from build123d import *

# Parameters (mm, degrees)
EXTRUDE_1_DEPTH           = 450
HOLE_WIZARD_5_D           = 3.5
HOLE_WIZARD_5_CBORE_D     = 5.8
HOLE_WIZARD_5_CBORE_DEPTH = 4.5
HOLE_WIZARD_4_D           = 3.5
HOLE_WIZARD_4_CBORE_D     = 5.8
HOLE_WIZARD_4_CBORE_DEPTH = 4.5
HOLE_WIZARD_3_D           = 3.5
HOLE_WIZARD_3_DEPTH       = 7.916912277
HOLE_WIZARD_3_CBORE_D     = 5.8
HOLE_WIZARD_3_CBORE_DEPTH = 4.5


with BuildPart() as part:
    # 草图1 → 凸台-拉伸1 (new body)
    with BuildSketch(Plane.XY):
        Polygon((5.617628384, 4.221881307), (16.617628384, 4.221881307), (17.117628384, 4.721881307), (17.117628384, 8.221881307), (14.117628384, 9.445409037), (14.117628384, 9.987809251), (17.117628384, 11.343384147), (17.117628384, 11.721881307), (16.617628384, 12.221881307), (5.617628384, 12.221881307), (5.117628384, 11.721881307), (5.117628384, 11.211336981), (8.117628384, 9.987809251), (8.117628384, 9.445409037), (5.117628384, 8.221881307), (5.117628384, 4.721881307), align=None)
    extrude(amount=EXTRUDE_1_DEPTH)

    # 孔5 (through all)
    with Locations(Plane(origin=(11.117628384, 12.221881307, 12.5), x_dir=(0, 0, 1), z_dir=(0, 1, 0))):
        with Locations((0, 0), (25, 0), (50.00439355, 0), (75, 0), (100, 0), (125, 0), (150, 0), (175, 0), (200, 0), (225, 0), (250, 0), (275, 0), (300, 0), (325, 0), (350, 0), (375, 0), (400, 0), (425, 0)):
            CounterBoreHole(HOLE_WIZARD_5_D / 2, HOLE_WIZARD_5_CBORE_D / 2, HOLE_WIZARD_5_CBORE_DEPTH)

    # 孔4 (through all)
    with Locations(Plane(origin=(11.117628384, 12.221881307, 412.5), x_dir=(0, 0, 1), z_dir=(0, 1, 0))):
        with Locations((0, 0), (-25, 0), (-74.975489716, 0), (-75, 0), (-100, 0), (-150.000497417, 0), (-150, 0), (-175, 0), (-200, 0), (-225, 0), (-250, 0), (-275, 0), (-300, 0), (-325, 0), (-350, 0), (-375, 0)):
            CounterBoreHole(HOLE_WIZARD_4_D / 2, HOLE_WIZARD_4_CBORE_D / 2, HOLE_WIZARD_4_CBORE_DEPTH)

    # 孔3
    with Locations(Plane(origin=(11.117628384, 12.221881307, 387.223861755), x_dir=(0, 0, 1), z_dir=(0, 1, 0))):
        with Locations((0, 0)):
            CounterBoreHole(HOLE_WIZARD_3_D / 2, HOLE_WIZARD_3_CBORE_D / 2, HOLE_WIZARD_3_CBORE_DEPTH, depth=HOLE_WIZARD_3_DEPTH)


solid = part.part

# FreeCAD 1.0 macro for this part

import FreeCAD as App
import Part
import Sketcher
Q = App.Units.Quantity

doc = App.newDocument("Part")
params = doc.addObject("Spreadsheet::Sheet", "Params")
for row, (alias, value) in enumerate([
    ("sketch1_width", "11 mm"),
    ("sketch1_height", "3.5 mm"),
    ("pad1_length", "450 mm"),
    ("sketch2_diameter", "3.5 mm"),
    ("hole_diameter", "3.5 mm"),
    ("hole_cbore_diameter", "5.8 mm"),
    ("hole_cbore_depth", "4.5 mm"),
    ("sketch3_diameter", "3.5 mm"),
    ("hole2_diameter", "3.5 mm"),
    ("hole2_cbore_diameter", "5.8 mm"),
    ("hole2_cbore_depth", "4.5 mm"),
    ("sketch4_diameter", "3.5 mm"),
    ("hole3_diameter", "3.5 mm"),
    ("hole3_depth", "7.916912 mm"),
    ("hole3_cbore_diameter", "5.8 mm"),
    ("hole3_cbore_depth", "4.5 mm"),
], start=1):
    params.set(f"A{row}", alias)
    params.set(f"B{row}", "=" + value)
    params.setAlias(f"B{row}", alias)

body = doc.addObject("PartDesign::Body", "Body")

sketch1 = body.newObject("Sketcher::SketchObject", "Sketch")
sketch1.AttachmentSupport = (doc.getObject("XY_Plane"), [""])
sketch1.MapMode = "FlatFace"
sketch1.addGeometry([
    Part.LineSegment(App.Vector(5.62, 4.22, 0), App.Vector(16.62, 4.22, 0)),
    Part.LineSegment(App.Vector(16.62, 4.22, 0), App.Vector(17.12, 4.72, 0)),
    Part.LineSegment(App.Vector(17.12, 4.72, 0), App.Vector(17.12, 8.22, 0)),
    Part.LineSegment(App.Vector(17.12, 8.22, 0), App.Vector(14.12, 9.45, 0)),
    Part.LineSegment(App.Vector(14.12, 9.45, 0), App.Vector(14.12, 9.99, 0)),
    Part.LineSegment(App.Vector(14.12, 9.99, 0), App.Vector(17.12, 11.34, 0)),
    Part.LineSegment(App.Vector(17.12, 11.34, 0), App.Vector(17.12, 11.72, 0)),
    Part.LineSegment(App.Vector(17.12, 11.72, 0), App.Vector(16.62, 12.22, 0)),
    Part.LineSegment(App.Vector(16.62, 12.22, 0), App.Vector(5.62, 12.22, 0)),
    Part.LineSegment(App.Vector(5.62, 12.22, 0), App.Vector(5.12, 11.72, 0)),
    Part.LineSegment(App.Vector(5.12, 11.72, 0), App.Vector(5.12, 11.21, 0)),
    Part.LineSegment(App.Vector(5.12, 11.21, 0), App.Vector(8.12, 9.99, 0)),
    Part.LineSegment(App.Vector(8.12, 9.99, 0), App.Vector(8.12, 9.45, 0)),
    Part.LineSegment(App.Vector(8.12, 9.45, 0), App.Vector(5.12, 8.22, 0)),
    Part.LineSegment(App.Vector(5.12, 8.22, 0), App.Vector(5.12, 4.72, 0)),
    Part.LineSegment(App.Vector(5.12, 4.72, 0), App.Vector(5.62, 4.22, 0)),
], False)
sketch1.addConstraint([
    Sketcher.Constraint("Coincident", 0, 2, 1, 1),
    Sketcher.Constraint("Coincident", 1, 2, 2, 1),
    Sketcher.Constraint("Coincident", 2, 2, 3, 1),
    Sketcher.Constraint("Coincident", 3, 2, 4, 1),
    Sketcher.Constraint("Coincident", 4, 2, 5, 1),
    Sketcher.Constraint("Coincident", 5, 2, 6, 1),
    Sketcher.Constraint("Coincident", 6, 2, 7, 1),
    Sketcher.Constraint("Coincident", 7, 2, 8, 1),
    Sketcher.Constraint("Coincident", 8, 2, 9, 1),
    Sketcher.Constraint("Coincident", 9, 2, 10, 1),
    Sketcher.Constraint("Coincident", 10, 2, 11, 1),
    Sketcher.Constraint("Coincident", 11, 2, 12, 1),
    Sketcher.Constraint("Coincident", 12, 2, 13, 1),
    Sketcher.Constraint("Coincident", 13, 2, 14, 1),
    Sketcher.Constraint("Coincident", 14, 2, 15, 1),
    Sketcher.Constraint("Coincident", 15, 2, 0, 1),
    Sketcher.Constraint("Horizontal", 0),
    Sketcher.Constraint("Vertical", 2),
    Sketcher.Constraint("Vertical", 4),
    Sketcher.Constraint("Vertical", 6),
    Sketcher.Constraint("Horizontal", 8),
    Sketcher.Constraint("Vertical", 10),
    Sketcher.Constraint("Vertical", 12),
    Sketcher.Constraint("Vertical", 14),
    Sketcher.Constraint("Perpendicular", 1, 7),
    Sketcher.Constraint("Perpendicular", 7, 9),
    Sketcher.Constraint("Parallel", 3, 11),
    Sketcher.Constraint("Perpendicular", 9, 15),
    Sketcher.Constraint("Horizontal", 6, 2, 9, 2),
    Sketcher.Constraint("Horizontal", 4, 2, 11, 2),
    Sketcher.Constraint("Horizontal", 3, 2, 12, 2),
    Sketcher.Constraint("Horizontal", 2, 2, 13, 2),
    Sketcher.Constraint("Horizontal", 1, 2, 14, 2),
    Sketcher.Constraint("Vertical", 2, 2, 5, 2),
    Sketcher.Constraint("Vertical", 0, 2, 7, 2),
    Sketcher.Constraint("Vertical", 10, 2, 13, 2),
    Sketcher.Constraint("Vertical", 8, 2, 15, 2),
    Sketcher.Constraint("Equal", 3, 11),
    Sketcher.Constraint("DistanceX", 0, 1, 0, 2, Q("11 mm")),
    Sketcher.Constraint("DistanceY", 2, 1, 2, 2, Q("3.5 mm")),
    Sketcher.Constraint("DistanceY", 0, 2, 2, 2, Q("4 mm")),
    Sketcher.Constraint("DistanceX", 3, 2, 2, 2, Q("3 mm")),
    Sketcher.Constraint("DistanceY", 1, 2, 6, 2, Q("7 mm")),
    Sketcher.Constraint("DistanceY", 4, 1, 4, 2, Q("0.5424 mm")),
    Sketcher.Constraint("Distance", 3, Q("3.239911 mm")),
    Sketcher.Constraint("Distance", 5, Q("3.292048 mm")),
    Sketcher.Constraint("DistanceX", -1, 1, 0, 2, Q("16.617628 mm")),
    Sketcher.Constraint("DistanceY", -1, 1, 0, 2, Q("4.221881 mm")),
])
sketch1.setExpression("Constraints[38]", "Params.sketch1_width")
sketch1.setExpression("Constraints[39]", "Params.sketch1_height")
pad1 = body.newObject("PartDesign::Pad", "Pad")
pad1.Profile = sketch1
pad1.setExpression("Length", "Params.pad1_length")

sketch2 = body.newObject("Sketcher::SketchObject", "Sketch001")
sketch2.AttachmentSupport = (doc.getObject("XZ_Plane"), [""])
sketch2.MapMode = "FlatFace"
sketch2.AttachmentOffset = App.Placement(App.Vector(0, 0, -12.221881), App.Rotation())
sketch2.addGeometry([
    Part.Circle(App.Vector(11.1, 12.5, 0), App.Vector(0, 0, 1), 1.8),
    Part.Circle(App.Vector(11.1, 37.5, 0), App.Vector(0, 0, 1), 1.8),
    Part.Circle(App.Vector(11.1, 62.5, 0), App.Vector(0, 0, 1), 1.8),
    Part.Circle(App.Vector(11.1, 87.5, 0), App.Vector(0, 0, 1), 1.8),
    Part.Circle(App.Vector(11.1, 112.5, 0), App.Vector(0, 0, 1), 1.8),
    Part.Circle(App.Vector(11.1, 137.5, 0), App.Vector(0, 0, 1), 1.8),
    Part.Circle(App.Vector(11.1, 162.5, 0), App.Vector(0, 0, 1), 1.8),
    Part.Circle(App.Vector(11.1, 187.5, 0), App.Vector(0, 0, 1), 1.8),
    Part.Circle(App.Vector(11.1, 212.5, 0), App.Vector(0, 0, 1), 1.8),
    Part.Circle(App.Vector(11.1, 237.5, 0), App.Vector(0, 0, 1), 1.8),
    Part.Circle(App.Vector(11.1, 262.5, 0), App.Vector(0, 0, 1), 1.8),
    Part.Circle(App.Vector(11.1, 287.5, 0), App.Vector(0, 0, 1), 1.8),
    Part.Circle(App.Vector(11.1, 312.5, 0), App.Vector(0, 0, 1), 1.8),
    Part.Circle(App.Vector(11.1, 337.5, 0), App.Vector(0, 0, 1), 1.8),
    Part.Circle(App.Vector(11.1, 362.5, 0), App.Vector(0, 0, 1), 1.8),
    Part.Circle(App.Vector(11.1, 387.5, 0), App.Vector(0, 0, 1), 1.8),
    Part.Circle(App.Vector(11.1, 412.5, 0), App.Vector(0, 0, 1), 1.8),
    Part.Circle(App.Vector(11.1, 437.5, 0), App.Vector(0, 0, 1), 1.8),
], False)
sketch2.addConstraint([
    Sketcher.Constraint("Equal", 0, 1),
    Sketcher.Constraint("Equal", 1, 2),
    Sketcher.Constraint("Equal", 2, 3),
    Sketcher.Constraint("Equal", 3, 4),
    Sketcher.Constraint("Equal", 4, 5),
    Sketcher.Constraint("Equal", 5, 6),
    Sketcher.Constraint("Equal", 6, 7),
    Sketcher.Constraint("Equal", 7, 8),
    Sketcher.Constraint("Equal", 8, 9),
    Sketcher.Constraint("Equal", 9, 10),
    Sketcher.Constraint("Equal", 10, 11),
    Sketcher.Constraint("Equal", 11, 12),
    Sketcher.Constraint("Equal", 12, 13),
    Sketcher.Constraint("Equal", 13, 14),
    Sketcher.Constraint("Equal", 14, 15),
    Sketcher.Constraint("Equal", 15, 16),
    Sketcher.Constraint("Equal", 16, 17),
    Sketcher.Constraint("Vertical", 0, 3, 1, 3),
    Sketcher.Constraint("Vertical", 1, 3, 2, 3),
    Sketcher.Constraint("Vertical", 2, 3, 3, 3),
    Sketcher.Constraint("Vertical", 3, 3, 4, 3),
    Sketcher.Constraint("Vertical", 4, 3, 5, 3),
    Sketcher.Constraint("Vertical", 5, 3, 6, 3),
    Sketcher.Constraint("Vertical", 6, 3, 7, 3),
    Sketcher.Constraint("Vertical", 7, 3, 8, 3),
    Sketcher.Constraint("Vertical", 8, 3, 9, 3),
    Sketcher.Constraint("Vertical", 9, 3, 10, 3),
    Sketcher.Constraint("Vertical", 10, 3, 11, 3),
    Sketcher.Constraint("Vertical", 11, 3, 12, 3),
    Sketcher.Constraint("Vertical", 12, 3, 13, 3),
    Sketcher.Constraint("Vertical", 13, 3, 14, 3),
    Sketcher.Constraint("Vertical", 14, 3, 15, 3),
    Sketcher.Constraint("Vertical", 15, 3, 16, 3),
    Sketcher.Constraint("Vertical", 16, 3, 17, 3),
    Sketcher.Constraint("Diameter", 0, Q("3.5 mm")),
    Sketcher.Constraint("DistanceY", 0, 3, 1, 3, Q("25 mm")),
    Sketcher.Constraint("DistanceY", 1, 3, 3, 3, Q("50 mm")),
    Sketcher.Constraint("DistanceY", 3, 3, 4, 3, Q("25 mm")),
    Sketcher.Constraint("DistanceY", 4, 3, 5, 3, Q("25 mm")),
    Sketcher.Constraint("DistanceY", 5, 3, 6, 3, Q("25 mm")),
    Sketcher.Constraint("DistanceY", 6, 3, 7, 3, Q("25 mm")),
    Sketcher.Constraint("DistanceY", 7, 3, 8, 3, Q("25 mm")),
    Sketcher.Constraint("DistanceY", 8, 3, 9, 3, Q("25 mm")),
    Sketcher.Constraint("DistanceY", 9, 3, 10, 3, Q("25 mm")),
    Sketcher.Constraint("DistanceY", 10, 3, 11, 3, Q("25 mm")),
    Sketcher.Constraint("DistanceY", 11, 3, 12, 3, Q("25 mm")),
    Sketcher.Constraint("DistanceY", 12, 3, 13, 3, Q("25 mm")),
    Sketcher.Constraint("DistanceY", 13, 3, 14, 3, Q("25 mm")),
    Sketcher.Constraint("DistanceY", 14, 3, 15, 3, Q("25 mm")),
    Sketcher.Constraint("DistanceY", 15, 3, 16, 3, Q("25 mm")),
    Sketcher.Constraint("DistanceY", 16, 3, 17, 3, Q("25 mm")),
    Sketcher.Constraint("DistanceY", -1, 1, 0, 3, Q("12.5 mm")),
    Sketcher.Constraint("DistanceX", -1, 1, 0, 3, Q("11.117628 mm")),
    Sketcher.Constraint("DistanceY", -1, 1, 2, 3, Q("62.504394 mm")),
])
sketch2.setExpression("Constraints[34]", "Params.sketch2_diameter")
doc.recompute()
hole = body.newObject("PartDesign::Hole", "Hole")
hole.Profile = sketch2
hole.ThreadType = "None"
hole.setExpression("Diameter", "Params.hole_diameter")
hole.DepthType = "ThroughAll"
hole.HoleCutType = "Counterbore"
hole.setExpression("HoleCutDiameter", "Params.hole_cbore_diameter")
hole.setExpression("HoleCutDepth", "Params.hole_cbore_depth")
hole.Reversed = True

sketch3 = body.newObject("Sketcher::SketchObject", "Sketch002")
sketch3.AttachmentSupport = (doc.getObject("XZ_Plane"), [""])
sketch3.MapMode = "FlatFace"
sketch3.AttachmentOffset = App.Placement(App.Vector(0, 0, -12.221881), App.Rotation())
sketch3.addGeometry([
    Part.Circle(App.Vector(11.1, 412.5, 0), App.Vector(0, 0, 1), 1.8),
    Part.Circle(App.Vector(11.1, 387.5, 0), App.Vector(0, 0, 1), 1.8),
    Part.Circle(App.Vector(11.1, 337.5, 0), App.Vector(0, 0, 1), 1.8),
    Part.Circle(App.Vector(11.1, 337.5, 0), App.Vector(0, 0, 1), 1.8),
    Part.Circle(App.Vector(11.1, 312.5, 0), App.Vector(0, 0, 1), 1.8),
    Part.Circle(App.Vector(11.1, 262.5, 0), App.Vector(0, 0, 1), 1.8),
    Part.Circle(App.Vector(11.1, 262.5, 0), App.Vector(0, 0, 1), 1.8),
    Part.Circle(App.Vector(11.1, 237.5, 0), App.Vector(0, 0, 1), 1.8),
    Part.Circle(App.Vector(11.1, 212.5, 0), App.Vector(0, 0, 1), 1.8),
    Part.Circle(App.Vector(11.1, 187.5, 0), App.Vector(0, 0, 1), 1.8),
    Part.Circle(App.Vector(11.1, 162.5, 0), App.Vector(0, 0, 1), 1.8),
    Part.Circle(App.Vector(11.1, 137.5, 0), App.Vector(0, 0, 1), 1.8),
    Part.Circle(App.Vector(11.1, 112.5, 0), App.Vector(0, 0, 1), 1.8),
    Part.Circle(App.Vector(11.1, 87.5, 0), App.Vector(0, 0, 1), 1.8),
    Part.Circle(App.Vector(11.1, 62.5, 0), App.Vector(0, 0, 1), 1.8),
    Part.Circle(App.Vector(11.1, 37.5, 0), App.Vector(0, 0, 1), 1.8),
], False)
sketch3.addConstraint([
    Sketcher.Constraint("Equal", 0, 1),
    Sketcher.Constraint("Equal", 1, 2),
    Sketcher.Constraint("Equal", 2, 3),
    Sketcher.Constraint("Equal", 3, 4),
    Sketcher.Constraint("Equal", 4, 5),
    Sketcher.Constraint("Equal", 5, 6),
    Sketcher.Constraint("Equal", 6, 7),
    Sketcher.Constraint("Equal", 7, 8),
    Sketcher.Constraint("Equal", 8, 9),
    Sketcher.Constraint("Equal", 9, 10),
    Sketcher.Constraint("Equal", 10, 11),
    Sketcher.Constraint("Equal", 11, 12),
    Sketcher.Constraint("Equal", 12, 13),
    Sketcher.Constraint("Equal", 13, 14),
    Sketcher.Constraint("Equal", 14, 15),
    Sketcher.Constraint("Vertical", 0, 3, 1, 3),
    Sketcher.Constraint("Vertical", 1, 3, 2, 3),
    Sketcher.Constraint("Vertical", 2, 3, 3, 3),
    Sketcher.Constraint("Vertical", 3, 3, 4, 3),
    Sketcher.Constraint("Vertical", 4, 3, 5, 3),
    Sketcher.Constraint("Vertical", 5, 3, 6, 3),
    Sketcher.Constraint("Vertical", 6, 3, 7, 3),
    Sketcher.Constraint("Vertical", 7, 3, 8, 3),
    Sketcher.Constraint("Vertical", 8, 3, 9, 3),
    Sketcher.Constraint("Vertical", 9, 3, 10, 3),
    Sketcher.Constraint("Vertical", 10, 3, 11, 3),
    Sketcher.Constraint("Vertical", 11, 3, 12, 3),
    Sketcher.Constraint("Vertical", 12, 3, 13, 3),
    Sketcher.Constraint("Vertical", 13, 3, 14, 3),
    Sketcher.Constraint("Vertical", 14, 3, 15, 3),
    Sketcher.Constraint("Diameter", 0, Q("3.5 mm")),
    Sketcher.Constraint("DistanceY", 1, 3, 0, 3, Q("25 mm")),
    Sketcher.Constraint("DistanceY", 3, 3, 1, 3, Q("50 mm")),
    Sketcher.Constraint("DistanceY", 4, 3, 3, 3, Q("25 mm")),
    Sketcher.Constraint("DistanceY", 6, 3, 4, 3, Q("50 mm")),
    Sketcher.Constraint("DistanceY", 7, 3, 6, 3, Q("25 mm")),
    Sketcher.Constraint("DistanceY", 8, 3, 7, 3, Q("25 mm")),
    Sketcher.Constraint("DistanceY", 9, 3, 8, 3, Q("25 mm")),
    Sketcher.Constraint("DistanceY", 10, 3, 9, 3, Q("25 mm")),
    Sketcher.Constraint("DistanceY", 11, 3, 10, 3, Q("25 mm")),
    Sketcher.Constraint("DistanceY", 12, 3, 11, 3, Q("25 mm")),
    Sketcher.Constraint("DistanceY", 13, 3, 12, 3, Q("25 mm")),
    Sketcher.Constraint("DistanceY", 14, 3, 13, 3, Q("25 mm")),
    Sketcher.Constraint("DistanceY", 15, 3, 14, 3, Q("25 mm")),
    Sketcher.Constraint("DistanceY", -1, 1, 0, 3, Q("412.5 mm")),
    Sketcher.Constraint("DistanceX", -1, 1, 0, 3, Q("11.117628 mm")),
    Sketcher.Constraint("DistanceY", -1, 1, 2, 3, Q("337.52451 mm")),
    Sketcher.Constraint("DistanceY", -1, 1, 5, 3, Q("262.499503 mm")),
])
sketch3.setExpression("Constraints[30]", "Params.sketch3_diameter")
doc.recompute()
hole2 = body.newObject("PartDesign::Hole", "Hole001")
hole2.Profile = sketch3
hole2.ThreadType = "None"
hole2.setExpression("Diameter", "Params.hole2_diameter")
hole2.DepthType = "ThroughAll"
hole2.HoleCutType = "Counterbore"
hole2.setExpression("HoleCutDiameter", "Params.hole2_cbore_diameter")
hole2.setExpression("HoleCutDepth", "Params.hole2_cbore_depth")
hole2.Reversed = True

sketch4 = body.newObject("Sketcher::SketchObject", "Sketch003")
sketch4.AttachmentSupport = (doc.getObject("XZ_Plane"), [""])
sketch4.MapMode = "FlatFace"
sketch4.AttachmentOffset = App.Placement(App.Vector(0, 0, -12.221881), App.Rotation())
sketch4.addGeometry(Part.Circle(App.Vector(11.1, 387.2, 0), App.Vector(0, 0, 1), 1.8), False)
sketch4.addConstraint([
    Sketcher.Constraint("Diameter", 0, Q("3.5 mm")),
    Sketcher.Constraint("DistanceX", -1, 1, 0, 3, Q("11.117628 mm")),
    Sketcher.Constraint("DistanceY", -1, 1, 0, 3, Q("387.223862 mm")),
])
sketch4.setExpression("Constraints[0]", "Params.sketch4_diameter")
doc.recompute()
hole3 = body.newObject("PartDesign::Hole", "Hole002")
hole3.Profile = sketch4
hole3.ThreadType = "None"
hole3.setExpression("Diameter", "Params.hole3_diameter")
hole3.DepthType = "Dimension"
hole3.setExpression("Depth", "Params.hole3_depth")
hole3.DrillPoint = "Flat"
hole3.HoleCutType = "Counterbore"
hole3.setExpression("HoleCutDiameter", "Params.hole3_cbore_diameter")
hole3.setExpression("HoleCutDepth", "Params.hole3_cbore_depth")
hole3.Reversed = True

doc.recompute()
